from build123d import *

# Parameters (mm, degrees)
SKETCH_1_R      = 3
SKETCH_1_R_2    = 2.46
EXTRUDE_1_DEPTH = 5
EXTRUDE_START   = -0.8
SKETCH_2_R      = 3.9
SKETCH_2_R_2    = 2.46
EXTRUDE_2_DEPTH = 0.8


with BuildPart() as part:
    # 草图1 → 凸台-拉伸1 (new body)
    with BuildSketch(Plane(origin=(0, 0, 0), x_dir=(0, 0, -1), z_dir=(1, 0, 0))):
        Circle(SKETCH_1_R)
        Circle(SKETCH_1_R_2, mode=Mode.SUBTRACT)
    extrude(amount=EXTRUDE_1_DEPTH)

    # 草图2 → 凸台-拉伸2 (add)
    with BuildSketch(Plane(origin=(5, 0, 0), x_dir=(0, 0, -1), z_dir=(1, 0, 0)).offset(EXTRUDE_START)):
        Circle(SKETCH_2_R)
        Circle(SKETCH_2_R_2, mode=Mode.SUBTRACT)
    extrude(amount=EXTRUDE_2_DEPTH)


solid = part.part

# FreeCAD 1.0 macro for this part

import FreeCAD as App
import Part
import Sketcher
Q = App.Units.Quantity

doc = App.newDocument("Part")
body = doc.addObject("PartDesign::Body", "Body")

# Sketch on YZ plane
sketch1 = body.newObject("Sketcher::SketchObject", "Sketch")
sketch1.AttachmentSupport = (doc.getObject("YZ_Plane"), [""])
sketch1.MapMode = "FlatFace"
sketch1.addGeometry([
    Part.Circle(App.Vector(0, 0, 0), App.Vector(0, 0, 1), 3),
    Part.Circle(App.Vector(0, 0, 0), App.Vector(0, 0, 1), 2.46),
], False)
sketch1.addConstraint([
    Sketcher.Constraint("Coincident", 0, 3, -1, 1),
    Sketcher.Constraint("Coincident", 1, 3, -1, 1),
    Sketcher.Constraint("Diameter", 0, Q("6 mm")),
    Sketcher.Constraint("Diameter", 1, Q("4.92 mm")),
])
pad1 = body.newObject("PartDesign::Pad", "Pad")
pad1.Profile = sketch1
pad1.Length = 5

# Sketch on YZ plane
sketch2 = body.newObject("Sketcher::SketchObject", "Sketch001")
sketch2.AttachmentSupport = (doc.getObject("YZ_Plane"), [""])
sketch2.MapMode = "FlatFace"
sketch2.AttachmentOffset = App.Placement(App.Vector(0, 0, 4.2), App.Rotation())
sketch2.addGeometry([
    Part.Circle(App.Vector(0, 0, 0), App.Vector(0, 0, 1), 3.9),
    Part.Circle(App.Vector(0, 0, 0), App.Vector(0, 0, 1), 2.46),
], False)
sketch2.addConstraint([
    Sketcher.Constraint("Coincident", 0, 3, -1, 1),
    Sketcher.Constraint("Coincident", 1, 3, -1, 1),
    Sketcher.Constraint("Diameter", 0, Q("7.8 mm")),
    Sketcher.Constraint("Diameter", 1, Q("4.92 mm")),
])
pad2 = body.newObject("PartDesign::Pad", "Pad001")
pad2.Profile = sketch2
pad2.Length = 0.8

doc.recompute()
